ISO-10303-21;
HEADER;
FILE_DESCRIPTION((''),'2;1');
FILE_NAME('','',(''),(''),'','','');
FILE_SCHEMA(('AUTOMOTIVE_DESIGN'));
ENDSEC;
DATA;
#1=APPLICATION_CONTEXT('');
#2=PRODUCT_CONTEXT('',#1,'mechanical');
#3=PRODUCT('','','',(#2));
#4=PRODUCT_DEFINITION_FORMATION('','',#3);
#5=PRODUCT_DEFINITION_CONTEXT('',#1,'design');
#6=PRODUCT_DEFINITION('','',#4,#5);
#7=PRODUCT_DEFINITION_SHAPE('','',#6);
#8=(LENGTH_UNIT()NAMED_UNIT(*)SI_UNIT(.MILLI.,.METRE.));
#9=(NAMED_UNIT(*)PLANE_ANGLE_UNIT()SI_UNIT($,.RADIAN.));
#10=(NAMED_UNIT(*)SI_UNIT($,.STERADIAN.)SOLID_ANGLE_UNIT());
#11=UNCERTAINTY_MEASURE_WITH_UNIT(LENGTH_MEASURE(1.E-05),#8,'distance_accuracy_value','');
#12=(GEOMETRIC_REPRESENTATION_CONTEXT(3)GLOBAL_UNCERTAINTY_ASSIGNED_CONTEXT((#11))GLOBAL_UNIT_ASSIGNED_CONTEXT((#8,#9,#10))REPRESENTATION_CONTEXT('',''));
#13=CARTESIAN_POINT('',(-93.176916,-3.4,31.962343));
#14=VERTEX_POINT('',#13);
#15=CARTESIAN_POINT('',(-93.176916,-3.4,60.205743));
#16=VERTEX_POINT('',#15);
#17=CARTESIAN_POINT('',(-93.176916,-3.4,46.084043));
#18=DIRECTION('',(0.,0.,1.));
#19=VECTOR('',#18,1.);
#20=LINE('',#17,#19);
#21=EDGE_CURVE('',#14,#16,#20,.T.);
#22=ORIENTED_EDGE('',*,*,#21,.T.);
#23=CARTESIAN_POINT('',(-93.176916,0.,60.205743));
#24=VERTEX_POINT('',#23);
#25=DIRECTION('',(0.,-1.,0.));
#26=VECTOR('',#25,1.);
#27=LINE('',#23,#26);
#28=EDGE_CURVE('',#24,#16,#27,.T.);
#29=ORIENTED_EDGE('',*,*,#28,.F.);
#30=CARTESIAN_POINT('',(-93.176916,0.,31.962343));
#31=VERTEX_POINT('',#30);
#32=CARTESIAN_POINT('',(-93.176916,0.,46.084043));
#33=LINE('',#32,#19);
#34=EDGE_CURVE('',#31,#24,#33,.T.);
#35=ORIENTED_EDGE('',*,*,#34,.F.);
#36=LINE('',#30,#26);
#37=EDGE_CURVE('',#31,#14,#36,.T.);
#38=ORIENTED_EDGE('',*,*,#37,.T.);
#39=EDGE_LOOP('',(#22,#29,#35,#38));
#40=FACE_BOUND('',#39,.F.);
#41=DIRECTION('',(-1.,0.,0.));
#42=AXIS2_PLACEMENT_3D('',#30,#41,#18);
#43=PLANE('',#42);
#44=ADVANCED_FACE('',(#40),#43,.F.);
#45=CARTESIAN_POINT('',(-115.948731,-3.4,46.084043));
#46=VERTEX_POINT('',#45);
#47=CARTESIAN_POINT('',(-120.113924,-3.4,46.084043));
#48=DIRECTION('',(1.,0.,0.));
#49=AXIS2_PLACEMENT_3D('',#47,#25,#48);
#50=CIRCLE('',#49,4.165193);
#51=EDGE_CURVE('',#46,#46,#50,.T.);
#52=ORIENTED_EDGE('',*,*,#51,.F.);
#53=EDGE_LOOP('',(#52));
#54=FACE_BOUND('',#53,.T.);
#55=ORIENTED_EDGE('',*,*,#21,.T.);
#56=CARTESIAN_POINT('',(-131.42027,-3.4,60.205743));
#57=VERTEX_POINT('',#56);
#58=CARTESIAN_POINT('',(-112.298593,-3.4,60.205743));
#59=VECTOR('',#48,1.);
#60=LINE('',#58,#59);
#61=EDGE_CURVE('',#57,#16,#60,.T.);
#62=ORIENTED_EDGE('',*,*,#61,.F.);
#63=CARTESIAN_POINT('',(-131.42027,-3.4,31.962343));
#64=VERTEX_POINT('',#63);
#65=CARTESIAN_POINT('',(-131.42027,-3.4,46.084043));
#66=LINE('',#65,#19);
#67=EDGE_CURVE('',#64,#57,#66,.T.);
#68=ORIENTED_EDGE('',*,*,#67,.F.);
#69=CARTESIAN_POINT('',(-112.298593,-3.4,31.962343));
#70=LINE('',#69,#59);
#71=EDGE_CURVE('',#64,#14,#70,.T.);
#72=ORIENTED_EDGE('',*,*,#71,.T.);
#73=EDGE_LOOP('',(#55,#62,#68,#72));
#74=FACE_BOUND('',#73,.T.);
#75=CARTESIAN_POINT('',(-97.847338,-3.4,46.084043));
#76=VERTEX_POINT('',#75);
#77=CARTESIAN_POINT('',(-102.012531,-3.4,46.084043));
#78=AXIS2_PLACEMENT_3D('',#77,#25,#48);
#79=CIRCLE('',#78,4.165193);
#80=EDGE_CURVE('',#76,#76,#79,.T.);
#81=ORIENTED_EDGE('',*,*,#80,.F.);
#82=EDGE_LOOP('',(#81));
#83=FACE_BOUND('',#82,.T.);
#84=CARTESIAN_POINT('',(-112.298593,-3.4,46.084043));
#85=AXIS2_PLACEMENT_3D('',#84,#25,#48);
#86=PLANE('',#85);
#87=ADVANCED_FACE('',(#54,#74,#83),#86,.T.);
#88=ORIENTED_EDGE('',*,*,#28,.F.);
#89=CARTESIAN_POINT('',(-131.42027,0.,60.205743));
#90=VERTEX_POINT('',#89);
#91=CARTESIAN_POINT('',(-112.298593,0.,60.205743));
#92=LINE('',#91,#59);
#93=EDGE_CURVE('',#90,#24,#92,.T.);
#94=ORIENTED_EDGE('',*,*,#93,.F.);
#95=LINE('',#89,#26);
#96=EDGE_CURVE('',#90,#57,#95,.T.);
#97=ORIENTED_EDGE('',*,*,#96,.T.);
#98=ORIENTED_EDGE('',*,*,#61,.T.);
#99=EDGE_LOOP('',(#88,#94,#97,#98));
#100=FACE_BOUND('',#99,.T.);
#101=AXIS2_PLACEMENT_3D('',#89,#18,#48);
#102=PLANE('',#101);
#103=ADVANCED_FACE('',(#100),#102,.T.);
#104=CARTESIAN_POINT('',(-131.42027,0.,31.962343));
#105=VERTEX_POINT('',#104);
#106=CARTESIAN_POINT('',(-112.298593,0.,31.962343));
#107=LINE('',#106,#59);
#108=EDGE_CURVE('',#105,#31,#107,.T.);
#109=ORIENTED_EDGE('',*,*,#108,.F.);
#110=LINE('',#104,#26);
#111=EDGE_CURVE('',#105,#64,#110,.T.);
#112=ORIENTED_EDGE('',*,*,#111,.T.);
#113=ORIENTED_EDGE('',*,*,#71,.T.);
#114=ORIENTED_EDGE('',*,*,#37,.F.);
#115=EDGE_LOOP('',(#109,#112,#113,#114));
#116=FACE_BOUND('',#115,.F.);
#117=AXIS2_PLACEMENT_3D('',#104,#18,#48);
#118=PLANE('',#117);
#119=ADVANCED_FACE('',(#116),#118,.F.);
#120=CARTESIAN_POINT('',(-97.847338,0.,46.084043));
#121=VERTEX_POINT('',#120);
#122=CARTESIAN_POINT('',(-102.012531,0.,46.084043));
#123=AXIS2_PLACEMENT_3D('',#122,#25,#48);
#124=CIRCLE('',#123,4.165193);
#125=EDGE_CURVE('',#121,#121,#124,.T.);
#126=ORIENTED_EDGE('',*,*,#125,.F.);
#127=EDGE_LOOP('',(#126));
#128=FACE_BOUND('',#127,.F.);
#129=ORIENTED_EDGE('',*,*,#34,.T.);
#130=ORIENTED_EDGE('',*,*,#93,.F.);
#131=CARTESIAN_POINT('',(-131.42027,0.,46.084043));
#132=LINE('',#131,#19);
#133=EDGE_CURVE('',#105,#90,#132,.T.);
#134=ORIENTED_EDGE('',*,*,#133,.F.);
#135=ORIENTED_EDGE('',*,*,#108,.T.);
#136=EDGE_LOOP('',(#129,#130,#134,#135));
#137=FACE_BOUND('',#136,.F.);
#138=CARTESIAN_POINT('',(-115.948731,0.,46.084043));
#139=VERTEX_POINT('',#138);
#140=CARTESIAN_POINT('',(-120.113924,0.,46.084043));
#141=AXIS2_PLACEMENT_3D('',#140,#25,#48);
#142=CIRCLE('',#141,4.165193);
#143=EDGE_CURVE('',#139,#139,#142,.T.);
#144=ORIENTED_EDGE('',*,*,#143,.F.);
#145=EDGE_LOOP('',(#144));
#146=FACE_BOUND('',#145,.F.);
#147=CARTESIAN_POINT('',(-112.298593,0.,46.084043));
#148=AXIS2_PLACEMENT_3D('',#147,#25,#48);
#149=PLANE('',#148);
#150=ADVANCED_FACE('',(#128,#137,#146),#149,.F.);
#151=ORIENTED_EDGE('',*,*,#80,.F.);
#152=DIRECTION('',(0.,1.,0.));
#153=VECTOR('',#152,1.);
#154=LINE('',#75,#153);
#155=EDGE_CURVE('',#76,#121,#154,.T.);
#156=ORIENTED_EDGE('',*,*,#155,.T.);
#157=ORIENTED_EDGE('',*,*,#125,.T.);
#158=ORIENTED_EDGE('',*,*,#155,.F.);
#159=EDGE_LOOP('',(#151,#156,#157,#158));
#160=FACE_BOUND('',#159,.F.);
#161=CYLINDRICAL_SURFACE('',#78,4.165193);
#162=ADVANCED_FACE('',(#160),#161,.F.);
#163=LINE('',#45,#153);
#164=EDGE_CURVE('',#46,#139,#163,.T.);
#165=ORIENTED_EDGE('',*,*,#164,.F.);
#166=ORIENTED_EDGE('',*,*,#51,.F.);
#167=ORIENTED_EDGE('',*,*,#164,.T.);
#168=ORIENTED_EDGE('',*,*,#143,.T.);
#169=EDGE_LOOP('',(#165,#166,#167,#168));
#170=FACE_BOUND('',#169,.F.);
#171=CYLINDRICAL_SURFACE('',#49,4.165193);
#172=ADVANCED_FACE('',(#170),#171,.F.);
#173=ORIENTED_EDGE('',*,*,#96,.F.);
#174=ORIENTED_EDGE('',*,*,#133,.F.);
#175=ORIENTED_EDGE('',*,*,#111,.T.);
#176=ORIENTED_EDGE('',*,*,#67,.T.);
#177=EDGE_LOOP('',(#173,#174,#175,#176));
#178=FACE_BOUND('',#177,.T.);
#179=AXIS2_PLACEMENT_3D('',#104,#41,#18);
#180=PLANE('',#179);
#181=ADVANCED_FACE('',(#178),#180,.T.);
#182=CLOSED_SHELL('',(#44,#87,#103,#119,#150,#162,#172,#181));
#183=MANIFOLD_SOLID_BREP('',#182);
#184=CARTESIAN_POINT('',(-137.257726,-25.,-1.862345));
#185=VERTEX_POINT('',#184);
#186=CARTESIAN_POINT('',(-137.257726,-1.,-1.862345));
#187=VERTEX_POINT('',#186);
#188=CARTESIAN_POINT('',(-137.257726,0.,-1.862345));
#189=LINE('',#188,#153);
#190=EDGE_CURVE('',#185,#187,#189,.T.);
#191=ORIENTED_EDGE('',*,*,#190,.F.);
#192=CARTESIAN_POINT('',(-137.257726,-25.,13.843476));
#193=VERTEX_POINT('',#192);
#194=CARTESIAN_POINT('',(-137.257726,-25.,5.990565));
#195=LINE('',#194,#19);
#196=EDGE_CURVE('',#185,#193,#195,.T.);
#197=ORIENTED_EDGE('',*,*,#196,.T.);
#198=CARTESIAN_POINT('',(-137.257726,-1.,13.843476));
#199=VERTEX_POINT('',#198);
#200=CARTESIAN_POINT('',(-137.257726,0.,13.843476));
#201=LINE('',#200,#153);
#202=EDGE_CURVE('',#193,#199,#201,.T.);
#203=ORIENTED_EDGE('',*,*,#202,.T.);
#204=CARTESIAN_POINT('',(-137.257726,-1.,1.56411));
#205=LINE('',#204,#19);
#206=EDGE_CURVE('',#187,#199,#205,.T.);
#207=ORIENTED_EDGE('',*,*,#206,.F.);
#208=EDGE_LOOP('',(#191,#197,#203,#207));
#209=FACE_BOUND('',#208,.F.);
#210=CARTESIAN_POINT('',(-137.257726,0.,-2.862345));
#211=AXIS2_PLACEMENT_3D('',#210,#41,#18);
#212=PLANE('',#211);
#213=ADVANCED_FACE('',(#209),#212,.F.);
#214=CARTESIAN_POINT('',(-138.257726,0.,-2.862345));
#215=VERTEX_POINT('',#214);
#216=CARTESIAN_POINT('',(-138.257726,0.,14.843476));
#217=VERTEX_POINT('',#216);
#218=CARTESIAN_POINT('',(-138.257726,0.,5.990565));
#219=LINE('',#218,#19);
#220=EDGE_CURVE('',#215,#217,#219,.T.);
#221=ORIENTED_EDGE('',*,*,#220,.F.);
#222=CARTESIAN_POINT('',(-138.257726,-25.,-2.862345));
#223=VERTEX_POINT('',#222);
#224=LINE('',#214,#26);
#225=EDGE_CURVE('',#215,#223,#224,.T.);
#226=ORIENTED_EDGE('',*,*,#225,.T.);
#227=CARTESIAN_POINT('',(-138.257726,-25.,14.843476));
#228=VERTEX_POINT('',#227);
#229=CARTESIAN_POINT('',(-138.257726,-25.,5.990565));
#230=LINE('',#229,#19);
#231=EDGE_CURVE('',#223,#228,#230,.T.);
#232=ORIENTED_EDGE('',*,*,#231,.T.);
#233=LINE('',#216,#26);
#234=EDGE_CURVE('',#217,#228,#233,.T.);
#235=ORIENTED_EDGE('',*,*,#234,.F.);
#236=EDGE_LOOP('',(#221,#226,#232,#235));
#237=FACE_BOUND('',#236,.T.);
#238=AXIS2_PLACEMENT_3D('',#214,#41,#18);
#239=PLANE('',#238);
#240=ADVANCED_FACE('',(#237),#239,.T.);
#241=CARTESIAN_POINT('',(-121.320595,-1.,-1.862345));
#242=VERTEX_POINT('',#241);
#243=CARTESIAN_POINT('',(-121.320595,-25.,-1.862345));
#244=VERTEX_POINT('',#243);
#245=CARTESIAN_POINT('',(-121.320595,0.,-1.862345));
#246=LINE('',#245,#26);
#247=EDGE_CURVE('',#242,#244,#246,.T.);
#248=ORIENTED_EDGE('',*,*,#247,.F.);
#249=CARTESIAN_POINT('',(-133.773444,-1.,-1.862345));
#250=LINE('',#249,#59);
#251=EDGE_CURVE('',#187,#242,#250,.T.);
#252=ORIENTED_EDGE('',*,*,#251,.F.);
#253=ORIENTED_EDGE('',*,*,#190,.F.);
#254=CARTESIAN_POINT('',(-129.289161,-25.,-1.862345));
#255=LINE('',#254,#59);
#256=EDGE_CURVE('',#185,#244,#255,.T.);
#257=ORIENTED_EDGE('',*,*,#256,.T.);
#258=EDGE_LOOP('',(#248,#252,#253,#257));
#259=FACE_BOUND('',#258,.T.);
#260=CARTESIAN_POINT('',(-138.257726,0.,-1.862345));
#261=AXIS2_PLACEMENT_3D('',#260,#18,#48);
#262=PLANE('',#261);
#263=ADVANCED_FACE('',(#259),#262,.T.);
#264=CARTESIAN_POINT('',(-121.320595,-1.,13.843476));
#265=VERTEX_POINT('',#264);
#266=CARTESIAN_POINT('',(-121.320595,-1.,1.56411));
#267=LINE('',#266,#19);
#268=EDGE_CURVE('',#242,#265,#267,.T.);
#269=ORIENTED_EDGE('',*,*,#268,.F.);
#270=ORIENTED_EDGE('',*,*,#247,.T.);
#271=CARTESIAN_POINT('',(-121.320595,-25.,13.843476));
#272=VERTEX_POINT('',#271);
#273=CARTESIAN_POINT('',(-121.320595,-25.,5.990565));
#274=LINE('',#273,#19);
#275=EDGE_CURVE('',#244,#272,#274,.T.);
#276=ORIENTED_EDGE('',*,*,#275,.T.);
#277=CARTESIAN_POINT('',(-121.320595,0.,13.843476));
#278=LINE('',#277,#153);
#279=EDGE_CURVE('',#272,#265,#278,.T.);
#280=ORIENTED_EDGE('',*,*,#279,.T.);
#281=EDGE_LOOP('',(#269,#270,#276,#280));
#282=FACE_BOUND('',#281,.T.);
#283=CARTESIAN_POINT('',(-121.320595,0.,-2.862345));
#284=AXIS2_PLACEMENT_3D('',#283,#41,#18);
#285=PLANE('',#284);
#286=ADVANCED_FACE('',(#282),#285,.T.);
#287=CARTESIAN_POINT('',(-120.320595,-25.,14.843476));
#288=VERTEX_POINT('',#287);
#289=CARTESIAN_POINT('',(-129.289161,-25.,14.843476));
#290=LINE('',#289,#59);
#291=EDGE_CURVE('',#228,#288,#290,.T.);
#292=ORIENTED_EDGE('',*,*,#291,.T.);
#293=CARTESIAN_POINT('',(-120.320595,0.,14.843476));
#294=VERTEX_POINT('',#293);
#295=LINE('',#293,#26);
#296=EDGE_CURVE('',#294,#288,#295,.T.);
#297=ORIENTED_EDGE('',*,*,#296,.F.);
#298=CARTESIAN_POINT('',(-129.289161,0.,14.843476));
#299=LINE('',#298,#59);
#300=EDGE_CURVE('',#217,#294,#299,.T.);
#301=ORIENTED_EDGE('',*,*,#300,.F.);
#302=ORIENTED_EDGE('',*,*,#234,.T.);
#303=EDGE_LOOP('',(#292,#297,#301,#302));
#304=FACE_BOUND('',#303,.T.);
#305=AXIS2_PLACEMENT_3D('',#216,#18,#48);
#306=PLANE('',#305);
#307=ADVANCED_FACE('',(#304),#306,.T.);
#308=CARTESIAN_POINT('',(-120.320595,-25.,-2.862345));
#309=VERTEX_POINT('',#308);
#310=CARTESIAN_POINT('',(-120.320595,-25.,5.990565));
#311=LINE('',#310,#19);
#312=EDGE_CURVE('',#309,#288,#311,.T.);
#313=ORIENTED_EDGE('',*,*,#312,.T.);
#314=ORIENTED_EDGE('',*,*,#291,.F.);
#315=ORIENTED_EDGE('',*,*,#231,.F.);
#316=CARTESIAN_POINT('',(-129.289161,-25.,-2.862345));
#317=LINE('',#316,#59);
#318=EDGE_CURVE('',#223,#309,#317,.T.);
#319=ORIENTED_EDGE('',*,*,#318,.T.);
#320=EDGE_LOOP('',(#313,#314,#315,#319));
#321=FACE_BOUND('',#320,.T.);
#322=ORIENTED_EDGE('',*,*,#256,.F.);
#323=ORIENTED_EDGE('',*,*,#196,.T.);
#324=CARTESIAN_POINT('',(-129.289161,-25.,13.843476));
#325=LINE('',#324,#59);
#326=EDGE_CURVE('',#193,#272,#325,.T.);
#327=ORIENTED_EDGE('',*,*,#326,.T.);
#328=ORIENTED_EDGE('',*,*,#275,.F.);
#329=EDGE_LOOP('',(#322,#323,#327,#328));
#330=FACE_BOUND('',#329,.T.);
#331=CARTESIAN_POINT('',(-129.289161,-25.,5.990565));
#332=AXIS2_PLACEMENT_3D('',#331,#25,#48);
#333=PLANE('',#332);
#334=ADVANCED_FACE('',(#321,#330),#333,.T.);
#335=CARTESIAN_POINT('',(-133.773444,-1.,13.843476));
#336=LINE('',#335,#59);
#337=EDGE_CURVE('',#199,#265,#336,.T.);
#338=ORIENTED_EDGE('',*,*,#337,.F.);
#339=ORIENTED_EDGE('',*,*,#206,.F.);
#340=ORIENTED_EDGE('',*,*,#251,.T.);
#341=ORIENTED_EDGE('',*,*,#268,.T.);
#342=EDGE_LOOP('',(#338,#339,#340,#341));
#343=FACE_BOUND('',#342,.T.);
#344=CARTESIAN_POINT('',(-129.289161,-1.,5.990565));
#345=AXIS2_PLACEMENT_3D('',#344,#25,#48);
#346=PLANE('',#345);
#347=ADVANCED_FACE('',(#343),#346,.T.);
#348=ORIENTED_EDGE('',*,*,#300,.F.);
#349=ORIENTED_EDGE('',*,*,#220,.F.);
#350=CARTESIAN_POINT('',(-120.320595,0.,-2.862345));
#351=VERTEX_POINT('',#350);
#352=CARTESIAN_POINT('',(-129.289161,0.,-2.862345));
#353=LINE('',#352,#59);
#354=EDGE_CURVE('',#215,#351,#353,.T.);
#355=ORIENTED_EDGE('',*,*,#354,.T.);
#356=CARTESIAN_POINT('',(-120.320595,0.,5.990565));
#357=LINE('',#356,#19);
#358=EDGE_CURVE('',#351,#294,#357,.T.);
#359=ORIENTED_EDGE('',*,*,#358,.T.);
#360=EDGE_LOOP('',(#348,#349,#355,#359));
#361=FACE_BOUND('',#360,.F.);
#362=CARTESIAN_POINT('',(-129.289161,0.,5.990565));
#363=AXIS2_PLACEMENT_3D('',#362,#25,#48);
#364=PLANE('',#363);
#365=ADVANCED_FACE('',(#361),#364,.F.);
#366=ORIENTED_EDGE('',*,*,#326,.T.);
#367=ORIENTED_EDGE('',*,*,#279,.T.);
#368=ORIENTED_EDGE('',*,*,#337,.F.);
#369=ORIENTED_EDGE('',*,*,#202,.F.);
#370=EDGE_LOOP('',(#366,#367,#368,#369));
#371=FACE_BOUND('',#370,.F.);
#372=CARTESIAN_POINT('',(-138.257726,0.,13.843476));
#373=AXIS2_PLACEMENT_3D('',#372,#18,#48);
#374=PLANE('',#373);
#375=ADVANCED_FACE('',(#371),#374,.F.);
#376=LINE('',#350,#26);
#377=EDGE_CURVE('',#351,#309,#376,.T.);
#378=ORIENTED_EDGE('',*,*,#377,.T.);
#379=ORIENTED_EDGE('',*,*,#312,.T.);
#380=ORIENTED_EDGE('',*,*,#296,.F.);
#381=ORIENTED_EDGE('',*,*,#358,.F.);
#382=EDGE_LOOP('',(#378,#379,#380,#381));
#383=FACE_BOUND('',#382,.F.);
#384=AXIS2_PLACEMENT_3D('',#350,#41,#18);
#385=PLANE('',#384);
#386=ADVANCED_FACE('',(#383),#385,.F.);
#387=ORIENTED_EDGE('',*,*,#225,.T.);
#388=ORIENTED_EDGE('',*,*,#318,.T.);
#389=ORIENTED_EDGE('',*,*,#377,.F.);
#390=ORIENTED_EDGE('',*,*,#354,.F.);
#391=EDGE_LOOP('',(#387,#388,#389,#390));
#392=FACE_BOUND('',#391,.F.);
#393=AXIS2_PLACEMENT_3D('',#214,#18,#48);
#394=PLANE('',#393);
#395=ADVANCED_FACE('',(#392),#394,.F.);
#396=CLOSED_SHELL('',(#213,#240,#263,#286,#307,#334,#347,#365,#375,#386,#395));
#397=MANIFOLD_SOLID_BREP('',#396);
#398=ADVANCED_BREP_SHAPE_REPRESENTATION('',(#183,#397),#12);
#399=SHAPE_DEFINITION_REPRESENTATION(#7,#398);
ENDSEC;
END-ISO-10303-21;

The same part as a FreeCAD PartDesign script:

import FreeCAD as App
import Part
import Sketcher


def faces_at(feature, points):
    """Names of the faces that lie closest to the given points."""
    faces = feature.Shape.Faces
    near = lambda p: min(range(len(faces)), key=lambda i: faces[i].distToShape(Part.Vertex(*p))[0])
    return sorted({f"Face{near(p) + 1}" for p in points})

doc = App.newDocument("Part")
body = doc.addObject("PartDesign::Body", "Body")

# Sketch on XZ plane
sketch1 = doc.addObject("Sketcher::SketchObject", "Sketch")
body.addObject(sketch1)
sketch1.AttachmentSupport = (doc.XZ_Plane, [""])
sketch1.MapMode = "FlatFace"
sketch1.addGeometry([
    Part.LineSegment(App.Vector(-131, 60, 0), App.Vector(-131, 32, 0)),
    Part.LineSegment(App.Vector(-131, 32, 0), App.Vector(-93, 32, 0)),
    Part.LineSegment(App.Vector(-93, 32, 0), App.Vector(-93, 60, 0)),
    Part.LineSegment(App.Vector(-93, 60, 0), App.Vector(-131, 60, 0)),
], False)
sketch1.addConstraint([
    Sketcher.Constraint("Coincident", 0, 2, 1, 1),
    Sketcher.Constraint("Coincident", 1, 2, 2, 1),
    Sketcher.Constraint("Coincident", 2, 2, 3, 1),
    Sketcher.Constraint("Coincident", 3, 2, 0, 1),
    Sketcher.Constraint("Vertical", 0),
    Sketcher.Constraint("Horizontal", 1),
    Sketcher.Constraint("Vertical", 2),
    Sketcher.Constraint("Horizontal", 3),
    Sketcher.Constraint("DistanceY", 0, 2, 0, 1, 28.2434),
    Sketcher.Constraint("DistanceX", 1, 1, 1, 2, 38.243354),
    Sketcher.Constraint("DistanceX", 0, 2, -1, 1, 131.42027),
    Sketcher.Constraint("DistanceY", -1, 1, 0, 2, 31.962343),
])
pad1 = doc.addObject("PartDesign::Pad", "Pad")
body.addObject(pad1)
pad1.Profile = sketch1
pad1.Length = 3.4

# Sketch on XZ plane
sketch2 = doc.addObject("Sketcher::SketchObject", "Sketch001")
body.addObject(sketch2)
sketch2.AttachmentSupport = (doc.XZ_Plane, [""])
sketch2.MapMode = "FlatFace"
sketch2.AttachmentOffset = App.Placement(App.Vector(0, 0, 3.4), App.Rotation())
sketch2.addGeometry([
    Part.Circle(App.Vector(-120.1, 46.1, 0), App.Vector(0, 0, 1), 4.2),
    Part.Circle(App.Vector(-102, 46.1, 0), App.Vector(0, 0, 1), 4.2),
], False)
sketch2.addConstraint([
    Sketcher.Constraint("Equal", 0, 1),
    Sketcher.Constraint("Horizontal", 0, 3, 1, 3),
    Sketcher.Constraint("Diameter", 0, 8.330386),
    Sketcher.Constraint("DistanceX", 1, 3, -1, 1, 102.012531),
    Sketcher.Constraint("DistanceX", 0, 3, -1, 1, 120.113924),
    Sketcher.Constraint("DistanceY", -1, 1, 0, 3, 46.084043),
])
pocket1 = doc.addObject("PartDesign::Pocket", "Pocket")
body.addObject(pocket1)
pocket1.Profile = sketch2
pocket1.Length = 25
body2 = doc.addObject("PartDesign::Body", "Body001")

# Sketch on XZ plane
sketch3 = doc.addObject("Sketcher::SketchObject", "Sketch002")
body2.addObject(sketch3)
sketch3.AttachmentSupport = (doc.getObject("XZ_Plane001"), [""])
sketch3.MapMode = "FlatFace"
sketch3.addGeometry([
    Part.LineSegment(App.Vector(-138, 15, 0), App.Vector(-138, -3, 0)),
    Part.LineSegment(App.Vector(-138, -3, 0), App.Vector(-120, -3, 0)),
    Part.LineSegment(App.Vector(-120, -3, 0), App.Vector(-120, 15, 0)),
    Part.LineSegment(App.Vector(-120, 15, 0), App.Vector(-138, 15, 0)),
], False)
sketch3.addConstraint([
    Sketcher.Constraint("Coincident", 0, 2, 1, 1),
    Sketcher.Constraint("Coincident", 1, 2, 2, 1),
    Sketcher.Constraint("Coincident", 2, 2, 3, 1),
    Sketcher.Constraint("Coincident", 3, 2, 0, 1),
    Sketcher.Constraint("Vertical", 0),
    Sketcher.Constraint("Horizontal", 1),
    Sketcher.Constraint("Vertical", 2),
    Sketcher.Constraint("Horizontal", 3),
    Sketcher.Constraint("DistanceX", 1, 1, 1, 2, 17.937131),
    Sketcher.Constraint("DistanceY", 0, 2, 0, 1, 17.705821),
    Sketcher.Constraint("DistanceX", 0, 2, -1, 1, 138.257726),
    Sketcher.Constraint("DistanceY", 0, 2, -1, 1, 2.862345),
])
pad2 = doc.addObject("PartDesign::Pad", "Pad001")
body2.addObject(pad2)
pad2.Profile = sketch3
pad2.Length = 25
doc.recompute()

thickness = doc.addObject("PartDesign::Thickness", "Thickness")
body2.addObject(thickness)
thickness.Base = (pad2, faces_at(pad2, [(-129.289, -25, 5.991)]))
thickness.Value = 1
thickness.Reversed = True
thickness.Join = "Arc"

doc.recompute()
